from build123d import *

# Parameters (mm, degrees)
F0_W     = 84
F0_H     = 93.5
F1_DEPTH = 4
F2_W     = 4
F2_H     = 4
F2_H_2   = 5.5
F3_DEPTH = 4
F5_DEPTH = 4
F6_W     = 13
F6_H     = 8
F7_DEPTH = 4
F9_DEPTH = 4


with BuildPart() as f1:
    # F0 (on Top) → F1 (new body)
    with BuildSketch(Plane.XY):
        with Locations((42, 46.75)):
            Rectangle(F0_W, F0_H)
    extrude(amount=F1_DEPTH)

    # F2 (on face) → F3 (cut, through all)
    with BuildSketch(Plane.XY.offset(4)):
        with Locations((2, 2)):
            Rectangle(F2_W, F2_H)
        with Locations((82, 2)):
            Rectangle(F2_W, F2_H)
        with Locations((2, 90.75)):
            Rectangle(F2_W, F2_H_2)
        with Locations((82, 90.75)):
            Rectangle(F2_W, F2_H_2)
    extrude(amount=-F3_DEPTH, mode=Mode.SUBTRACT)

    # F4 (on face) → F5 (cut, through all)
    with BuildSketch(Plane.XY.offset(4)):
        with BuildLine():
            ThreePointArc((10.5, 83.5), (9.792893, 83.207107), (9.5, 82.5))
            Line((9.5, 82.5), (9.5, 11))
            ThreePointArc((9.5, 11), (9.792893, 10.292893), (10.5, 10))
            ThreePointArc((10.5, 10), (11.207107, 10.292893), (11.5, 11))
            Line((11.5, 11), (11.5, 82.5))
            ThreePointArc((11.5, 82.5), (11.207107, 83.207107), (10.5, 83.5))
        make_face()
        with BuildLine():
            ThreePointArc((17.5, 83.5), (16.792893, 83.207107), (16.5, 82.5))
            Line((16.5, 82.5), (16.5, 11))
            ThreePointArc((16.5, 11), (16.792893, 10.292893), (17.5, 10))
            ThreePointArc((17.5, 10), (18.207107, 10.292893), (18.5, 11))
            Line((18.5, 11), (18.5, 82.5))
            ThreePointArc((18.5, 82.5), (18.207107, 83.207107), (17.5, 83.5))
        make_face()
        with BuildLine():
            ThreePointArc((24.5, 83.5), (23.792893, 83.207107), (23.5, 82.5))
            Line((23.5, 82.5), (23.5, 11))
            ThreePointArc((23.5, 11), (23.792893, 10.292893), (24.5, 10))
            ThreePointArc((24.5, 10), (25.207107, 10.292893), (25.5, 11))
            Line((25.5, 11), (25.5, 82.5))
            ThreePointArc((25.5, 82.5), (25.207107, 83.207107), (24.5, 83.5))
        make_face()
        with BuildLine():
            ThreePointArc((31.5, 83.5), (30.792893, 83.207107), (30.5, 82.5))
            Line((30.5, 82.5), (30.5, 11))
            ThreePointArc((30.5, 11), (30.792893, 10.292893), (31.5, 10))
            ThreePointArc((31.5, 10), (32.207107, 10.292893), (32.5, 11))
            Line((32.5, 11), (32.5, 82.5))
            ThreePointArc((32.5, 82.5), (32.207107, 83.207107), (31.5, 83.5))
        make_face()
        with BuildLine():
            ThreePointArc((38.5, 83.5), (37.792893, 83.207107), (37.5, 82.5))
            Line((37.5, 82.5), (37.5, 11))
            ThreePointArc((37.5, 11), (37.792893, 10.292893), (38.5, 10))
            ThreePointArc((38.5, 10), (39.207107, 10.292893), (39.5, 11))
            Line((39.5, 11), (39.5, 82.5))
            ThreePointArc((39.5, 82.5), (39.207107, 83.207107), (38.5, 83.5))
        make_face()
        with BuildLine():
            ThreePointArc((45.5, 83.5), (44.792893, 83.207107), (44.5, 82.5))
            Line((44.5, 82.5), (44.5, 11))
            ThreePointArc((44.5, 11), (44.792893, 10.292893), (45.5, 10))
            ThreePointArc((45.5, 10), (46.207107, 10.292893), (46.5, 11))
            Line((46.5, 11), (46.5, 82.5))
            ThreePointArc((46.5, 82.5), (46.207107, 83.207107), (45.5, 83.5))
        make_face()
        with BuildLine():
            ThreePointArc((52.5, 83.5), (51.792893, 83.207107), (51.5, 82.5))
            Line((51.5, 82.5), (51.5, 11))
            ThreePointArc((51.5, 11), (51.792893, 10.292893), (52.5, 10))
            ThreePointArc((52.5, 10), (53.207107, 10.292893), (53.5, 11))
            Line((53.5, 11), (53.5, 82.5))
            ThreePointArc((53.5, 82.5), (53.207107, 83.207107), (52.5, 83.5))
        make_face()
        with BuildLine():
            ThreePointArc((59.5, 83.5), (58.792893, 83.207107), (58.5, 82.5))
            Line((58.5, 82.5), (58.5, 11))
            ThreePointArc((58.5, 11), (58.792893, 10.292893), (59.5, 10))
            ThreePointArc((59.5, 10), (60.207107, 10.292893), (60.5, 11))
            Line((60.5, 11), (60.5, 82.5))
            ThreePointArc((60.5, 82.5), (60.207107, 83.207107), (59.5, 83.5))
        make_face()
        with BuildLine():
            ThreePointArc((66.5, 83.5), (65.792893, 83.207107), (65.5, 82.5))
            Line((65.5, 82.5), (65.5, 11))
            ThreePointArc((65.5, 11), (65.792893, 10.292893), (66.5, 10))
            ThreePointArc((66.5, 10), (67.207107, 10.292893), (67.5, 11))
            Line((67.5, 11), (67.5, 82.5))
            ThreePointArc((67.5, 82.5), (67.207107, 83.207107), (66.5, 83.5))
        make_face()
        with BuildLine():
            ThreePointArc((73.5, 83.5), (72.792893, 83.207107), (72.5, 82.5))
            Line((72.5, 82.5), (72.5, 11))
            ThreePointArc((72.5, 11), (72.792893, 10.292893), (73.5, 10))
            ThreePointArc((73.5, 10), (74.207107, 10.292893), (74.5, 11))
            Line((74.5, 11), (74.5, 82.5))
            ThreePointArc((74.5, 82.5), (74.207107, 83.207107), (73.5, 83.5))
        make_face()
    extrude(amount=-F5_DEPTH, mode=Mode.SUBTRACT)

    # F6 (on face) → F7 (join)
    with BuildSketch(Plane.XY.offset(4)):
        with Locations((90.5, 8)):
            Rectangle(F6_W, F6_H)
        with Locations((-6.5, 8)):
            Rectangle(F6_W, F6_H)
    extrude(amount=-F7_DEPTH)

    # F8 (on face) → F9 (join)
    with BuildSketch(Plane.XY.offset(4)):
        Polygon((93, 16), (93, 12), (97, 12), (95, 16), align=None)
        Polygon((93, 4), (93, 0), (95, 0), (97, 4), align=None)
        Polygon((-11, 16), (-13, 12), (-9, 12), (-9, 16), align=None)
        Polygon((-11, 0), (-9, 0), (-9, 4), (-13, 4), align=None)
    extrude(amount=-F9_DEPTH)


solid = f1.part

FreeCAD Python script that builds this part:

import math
import FreeCAD as App
import Part
import Sketcher

doc = App.newDocument("Part")
body = doc.addObject("PartDesign::Body", "Body")

# Sketch on XY plane
sketch1 = body.newObject("Sketcher::SketchObject", "Sketch")
sketch1.AttachmentSupport = (doc.getObject("XY_Plane"), [""])
sketch1.MapMode = "FlatFace"
sketch1.addGeometry(Part.LineSegment(App.Vector(0, 94, 0), App.Vector(0, 0, 0)), False)
sketch1.addGeometry(Part.LineSegment(App.Vector(0, 0, 0), App.Vector(84, 0, 0)), False)
sketch1.addGeometry(Part.LineSegment(App.Vector(84, 0, 0), App.Vector(84, 94, 0)), False)
sketch1.addGeometry(Part.LineSegment(App.Vector(84, 94, 0), App.Vector(0, 94, 0)), False)
sketch1.addConstraint(Sketcher.Constraint("Coincident", 0, 2, 1, 1))
sketch1.addConstraint(Sketcher.Constraint("Coincident", 1, 2, 2, 1))
sketch1.addConstraint(Sketcher.Constraint("Coincident", 2, 2, 3, 1))
sketch1.addConstraint(Sketcher.Constraint("Coincident", 3, 2, 0, 1))
sketch1.addConstraint(Sketcher.Constraint("Vertical", 0))
sketch1.addConstraint(Sketcher.Constraint("Horizontal", 1))
sketch1.addConstraint(Sketcher.Constraint("Vertical", 2))
sketch1.addConstraint(Sketcher.Constraint("Horizontal", 3))
sketch1.addConstraint(Sketcher.Constraint("Coincident", 0, 2, -1, 1))
sketch1.addConstraint(Sketcher.Constraint("DistanceX", 1, 1, 1, 2, 84.0))
sketch1.addConstraint(Sketcher.Constraint("DistanceY", 0, 2, 0, 1, 93.5))
pad1 = body.newObject("PartDesign::Pad", "Pad")
pad1.Profile = sketch1
pad1.Length = 4

# Sketch on XY plane
sketch2 = body.newObject("Sketcher::SketchObject", "Sketch001")
sketch2.AttachmentSupport = (doc.getObject("XY_Plane"), [""])
sketch2.MapMode = "FlatFace"
sketch2.AttachmentOffset = App.Placement(App.Vector(0, 0, 4), App.Rotation())
sketch2.addGeometry(Part.LineSegment(App.Vector(0, 4, 0), App.Vector(0, 0, 0)), False)
sketch2.addGeometry(Part.LineSegment(App.Vector(0, 0, 0), App.Vector(4, 0, 0)), False)
sketch2.addGeometry(Part.LineSegment(App.Vector(4, 0, 0), App.Vector(4, 4, 0)), False)
sketch2.addGeometry(Part.LineSegment(App.Vector(4, 4, 0), App.Vector(0, 4, 0)), False)
sketch2.addGeometry(Part.LineSegment(App.Vector(80, 4, 0), App.Vector(80, 0, 0)), False)
sketch2.addGeometry(Part.LineSegment(App.Vector(80, 0, 0), App.Vector(84, 0, 0)), False)
sketch2.addGeometry(Part.LineSegment(App.Vector(84, 0, 0), App.Vector(84, 4, 0)), False)
sketch2.addGeometry(Part.LineSegment(App.Vector(84, 4, 0), App.Vector(80, 4, 0)), False)
sketch2.addGeometry(Part.LineSegment(App.Vector(0, 93.5, 0), App.Vector(0, 88, 0)), False)
sketch2.addGeometry(Part.LineSegment(App.Vector(0, 88, 0), App.Vector(4, 88, 0)), False)
sketch2.addGeometry(Part.LineSegment(App.Vector(4, 88, 0), App.Vector(4, 93.5, 0)), False)
sketch2.addGeometry(Part.LineSegment(App.Vector(4, 93.5, 0), App.Vector(0, 93.5, 0)), False)
sketch2.addGeometry(Part.LineSegment(App.Vector(80, 93.5, 0), App.Vector(80, 88, 0)), False)
sketch2.addGeometry(Part.LineSegment(App.Vector(80, 88, 0), App.Vector(84, 88, 0)), False)
sketch2.addGeometry(Part.LineSegment(App.Vector(84, 88, 0), App.Vector(84, 93.5, 0)), False)
sketch2.addGeometry(Part.LineSegment(App.Vector(84, 93.5, 0), App.Vector(80, 93.5, 0)), False)
sketch2.addConstraint(Sketcher.Constraint("Coincident", 0, 2, 1, 1))
sketch2.addConstraint(Sketcher.Constraint("Coincident", 1, 2, 2, 1))
sketch2.addConstraint(Sketcher.Constraint("Coincident", 2, 2, 3, 1))
sketch2.addConstraint(Sketcher.Constraint("Coincident", 3, 2, 0, 1))
sketch2.addConstraint(Sketcher.Constraint("Coincident", 4, 2, 5, 1))
sketch2.addConstraint(Sketcher.Constraint("Coincident", 5, 2, 6, 1))
sketch2.addConstraint(Sketcher.Constraint("Coincident", 6, 2, 7, 1))
sketch2.addConstraint(Sketcher.Constraint("Coincident", 7, 2, 4, 1))
sketch2.addConstraint(Sketcher.Constraint("Coincident", 8, 2, 9, 1))
sketch2.addConstraint(Sketcher.Constraint("Coincident", 9, 2, 10, 1))
sketch2.addConstraint(Sketcher.Constraint("Coincident", 10, 2, 11, 1))
sketch2.addConstraint(Sketcher.Constraint("Coincident", 11, 2, 8, 1))
sketch2.addConstraint(Sketcher.Constraint("Coincident", 12, 2, 13, 1))
sketch2.addConstraint(Sketcher.Constraint("Coincident", 13, 2, 14, 1))
sketch2.addConstraint(Sketcher.Constraint("Coincident", 14, 2, 15, 1))
sketch2.addConstraint(Sketcher.Constraint("Coincident", 15, 2, 12, 1))
sketch2.addConstraint(Sketcher.Constraint("Vertical", 0))
sketch2.addConstraint(Sketcher.Constraint("Horizontal", 1))
sketch2.addConstraint(Sketcher.Constraint("Vertical", 2))
sketch2.addConstraint(Sketcher.Constraint("Horizontal", 3))
sketch2.addConstraint(Sketcher.Constraint("Vertical", 4))
sketch2.addConstraint(Sketcher.Constraint("Horizontal", 5))
sketch2.addConstraint(Sketcher.Constraint("Vertical", 6))
sketch2.addConstraint(Sketcher.Constraint("Horizontal", 7))
sketch2.addConstraint(Sketcher.Constraint("Vertical", 8))
sketch2.addConstraint(Sketcher.Constraint("Horizontal", 9))
sketch2.addConstraint(Sketcher.Constraint("Vertical", 10))
sketch2.addConstraint(Sketcher.Constraint("Horizontal", 11))
sketch2.addConstraint(Sketcher.Constraint("Vertical", 12))
sketch2.addConstraint(Sketcher.Constraint("Horizontal", 13))
sketch2.addConstraint(Sketcher.Constraint("Vertical", 14))
sketch2.addConstraint(Sketcher.Constraint("Horizontal", 15))
sketch2.addConstraint(Sketcher.Constraint("Coincident", 0, 2, -1, 1))
sketch2.addConstraint(Sketcher.Constraint("PointOnObject", 4, 2, -1))
sketch2.addConstraint(Sketcher.Constraint("PointOnObject", 8, 2, -2))
sketch2.addConstraint(Sketcher.Constraint("Horizontal", 3, 2, 6, 2))
sketch2.addConstraint(Sketcher.Constraint("Horizontal", 9, 2, 12, 2))
sketch2.addConstraint(Sketcher.Constraint("Horizontal", 11, 2, 14, 2))
sketch2.addConstraint(Sketcher.Constraint("Vertical", 2, 2, 9, 2))
sketch2.addConstraint(Sketcher.Constraint("Vertical", 7, 2, 12, 2))
sketch2.addConstraint(Sketcher.Constraint("Vertical", 6, 2, 13, 2))
sketch2.addConstraint(Sketcher.Constraint("Equal", 3, 5))
sketch2.addConstraint(Sketcher.Constraint("Equal", 15, 0))
sketch2.addConstraint(Sketcher.Constraint("DistanceX", 1, 1, 1, 2, 4.0))
sketch2.addConstraint(Sketcher.Constraint("DistanceY", 8, 2, 8, 1, 5.5))
sketch2.addConstraint(Sketcher.Constraint("DistanceX", -1, 1, 4, 2, 80.0))
sketch2.addConstraint(Sketcher.Constraint("DistanceY", -1, 1, 8, 2, 88.0))
pocket1 = body.newObject("PartDesign::Pocket", "Pocket")
pocket1.Profile = sketch2
pocket1.Type = "ThroughAll"

# Sketch on XY plane
sketch3 = body.newObject("Sketcher::SketchObject", "Sketch002")
sketch3.AttachmentSupport = (doc.getObject("XY_Plane"), [""])
sketch3.MapMode = "FlatFace"
sketch3.AttachmentOffset = App.Placement(App.Vector(0, 0, 4), App.Rotation())
sketch3.addGeometry(Part.ArcOfCircle(Part.Circle(App.Vector(10.5, 82.5, 0), App.Vector(0, 0, 1), 1), math.radians(90), math.radians(180)), False)
sketch3.addGeometry(Part.LineSegment(App.Vector(9.5, 82.5, 0), App.Vector(9.5, 11, 0)), False)
sketch3.addGeometry(Part.ArcOfCircle(Part.Circle(App.Vector(10.5, 11, 0), App.Vector(0, 0, 1), 1), math.radians(180), math.radians(270)), False)
sketch3.addGeometry(Part.ArcOfCircle(Part.Circle(App.Vector(10.5, 11, 0), App.Vector(0, 0, 1), 1), math.radians(-90), math.radians(0)), False)
sketch3.addGeometry(Part.LineSegment(App.Vector(11.5, 11, 0), App.Vector(11.5, 82.5, 0)), False)
sketch3.addGeometry(Part.ArcOfCircle(Part.Circle(App.Vector(10.5, 82.5, 0), App.Vector(0, 0, 1), 1), math.radians(0), math.radians(90)), False)
sketch3.addGeometry(Part.ArcOfCircle(Part.Circle(App.Vector(17.5, 82.5, 0), App.Vector(0, 0, 1), 1), math.radians(90), math.radians(180)), False)
sketch3.addGeometry(Part.LineSegment(App.Vector(16.5, 82.5, 0), App.Vector(16.5, 11, 0)), False)
sketch3.addGeometry(Part.ArcOfCircle(Part.Circle(App.Vector(17.5, 11, 0), App.Vector(0, 0, 1), 1), math.radians(180), math.radians(270)), False)
sketch3.addGeometry(Part.ArcOfCircle(Part.Circle(App.Vector(17.5, 11, 0), App.Vector(0, 0, 1), 1), math.radians(-90), math.radians(0)), False)
sketch3.addGeometry(Part.LineSegment(App.Vector(18.5, 11, 0), App.Vector(18.5, 82.5, 0)), False)
sketch3.addGeometry(Part.ArcOfCircle(Part.Circle(App.Vector(17.5, 82.5, 0), App.Vector(0, 0, 1), 1), math.radians(0), math.radians(90)), False)
sketch3.addGeometry(Part.ArcOfCircle(Part.Circle(App.Vector(24.5, 82.5, 0), App.Vector(0, 0, 1), 1), math.radians(90), math.radians(180)), False)
sketch3.addGeometry(Part.LineSegment(App.Vector(23.5, 82.5, 0), App.Vector(23.5, 11, 0)), False)
sketch3.addGeometry(Part.ArcOfCircle(Part.Circle(App.Vector(24.5, 11, 0), App.Vector(0, 0, 1), 1), math.radians(180), math.radians(270)), False)
sketch3.addGeometry(Part.ArcOfCircle(Part.Circle(App.Vector(24.5, 11, 0), App.Vector(0, 0, 1), 1), math.radians(-90), math.radians(0)), False)
sketch3.addGeometry(Part.LineSegment(App.Vector(25.5, 11, 0), App.Vector(25.5, 82.5, 0)), False)
sketch3.addGeometry(Part.ArcOfCircle(Part.Circle(App.Vector(24.5, 82.5, 0), App.Vector(0, 0, 1), 1), math.radians(0), math.radians(90)), False)
sketch3.addGeometry(Part.ArcOfCircle(Part.Circle(App.Vector(31.5, 82.5, 0), App.Vector(0, 0, 1), 1), math.radians(90), math.radians(180)), False)
sketch3.addGeometry(Part.LineSegment(App.Vector(30.5, 82.5, 0), App.Vector(30.5, 11, 0)), False)
sketch3.addGeometry(Part.ArcOfCircle(Part.Circle(App.Vector(31.5, 11, 0), App.Vector(0, 0, 1), 1), math.radians(180), math.radians(270)), False)
sketch3.addGeometry(Part.ArcOfCircle(Part.Circle(App.Vector(31.5, 11, 0), App.Vector(0, 0, 1), 1), math.radians(-90), math.radians(0)), False)
sketch3.addGeometry(Part.LineSegment(App.Vector(32.5, 11, 0), App.Vector(32.5, 82.5, 0)), False)
sketch3.addGeometry(Part.ArcOfCircle(Part.Circle(App.Vector(31.5, 82.5, 0), App.Vector(0, 0, 1), 1), math.radians(0), math.radians(90)), False)
sketch3.addGeometry(Part.ArcOfCircle(Part.Circle(App.Vector(38.5, 82.5, 0), App.Vector(0, 0, 1), 1), math.radians(90), math.radians(180)), False)
sketch3.addGeometry(Part.LineSegment(App.Vector(37.5, 82.5, 0), App.Vector(37.5, 11, 0)), False)
sketch3.addGeometry(Part.ArcOfCircle(Part.Circle(App.Vector(38.5, 11, 0), App.Vector(0, 0, 1), 1), math.radians(180), math.radians(270)), False)
sketch3.addGeometry(Part.ArcOfCircle(Part.Circle(App.Vector(38.5, 11, 0), App.Vector(0, 0, 1), 1), math.radians(-90), math.radians(0)), False)
sketch3.addGeometry(Part.LineSegment(App.Vector(39.5, 11, 0), App.Vector(39.5, 82.5, 0)), False)
sketch3.addGeometry(Part.ArcOfCircle(Part.Circle(App.Vector(38.5, 82.5, 0), App.Vector(0, 0, 1), 1), math.radians(0), math.radians(90)), False)
sketch3.addGeometry(Part.ArcOfCircle(Part.Circle(App.Vector(45.5, 82.5, 0), App.Vector(0, 0, 1), 1), math.radians(90), math.radians(180)), False)
sketch3.addGeometry(Part.LineSegment(App.Vector(44.5, 82.5, 0), App.Vector(44.5, 11, 0)), False)
sketch3.addGeometry(Part.ArcOfCircle(Part.Circle(App.Vector(45.5, 11, 0), App.Vector(0, 0, 1), 1), math.radians(180), math.radians(270)), False)
sketch3.addGeometry(Part.ArcOfCircle(Part.Circle(App.Vector(45.5, 11, 0), App.Vector(0, 0, 1), 1), math.radians(-90), math.radians(0)), False)
sketch3.addGeometry(Part.LineSegment(App.Vector(46.5, 11, 0), App.Vector(46.5, 82.5, 0)), False)
sketch3.addGeometry(Part.ArcOfCircle(Part.Circle(App.Vector(45.5, 82.5, 0), App.Vector(0, 0, 1), 1), math.radians(0), math.radians(90)), False)
sketch3.addGeometry(Part.ArcOfCircle(Part.Circle(App.Vector(52.5, 82.5, 0), App.Vector(0, 0, 1), 1), math.radians(90), math.radians(180)), False)
sketch3.addGeometry(Part.LineSegment(App.Vector(51.5, 82.5, 0), App.Vector(51.5, 11, 0)), False)
sketch3.addGeometry(Part.ArcOfCircle(Part.Circle(App.Vector(52.5, 11, 0), App.Vector(0, 0, 1), 1), math.radians(180), math.radians(270)), False)
sketch3.addGeometry(Part.ArcOfCircle(Part.Circle(App.Vector(52.5, 11, 0), App.Vector(0, 0, 1), 1), math.radians(-90), math.radians(0)), False)
sketch3.addGeometry(Part.LineSegment(App.Vector(53.5, 11, 0), App.Vector(53.5, 82.5, 0)), False)
sketch3.addGeometry(Part.ArcOfCircle(Part.Circle(App.Vector(52.5, 82.5, 0), App.Vector(0, 0, 1), 1), math.radians(0), math.radians(90)), False)
sketch3.addGeometry(Part.ArcOfCircle(Part.Circle(App.Vector(59.5, 82.5, 0), App.Vector(0, 0, 1), 1), math.radians(90), math.radians(180)), False)
sketch3.addGeometry(Part.LineSegment(App.Vector(58.5, 82.5, 0), App.Vector(58.5, 11, 0)), False)
sketch3.addGeometry(Part.ArcOfCircle(Part.Circle(App.Vector(59.5, 11, 0), App.Vector(0, 0, 1), 1), math.radians(180), math.radians(270)), False)
sketch3.addGeometry(Part.ArcOfCircle(Part.Circle(App.Vector(59.5, 11, 0), App.Vector(0, 0, 1), 1), math.radians(-90), math.radians(0)), False)
sketch3.addGeometry(Part.LineSegment(App.Vector(60.5, 11, 0), App.Vector(60.5, 82.5, 0)), False)
sketch3.addGeometry(Part.ArcOfCircle(Part.Circle(App.Vector(59.5, 82.5, 0), App.Vector(0, 0, 1), 1), math.radians(0), math.radians(90)), False)
sketch3.addGeometry(Part.ArcOfCircle(Part.Circle(App.Vector(66.5, 82.5, 0), App.Vector(0, 0, 1), 1), math.radians(90), math.radians(180)), False)
sketch3.addGeometry(Part.LineSegment(App.Vector(65.5, 82.5, 0), App.Vector(65.5, 11, 0)), False)
sketch3.addGeometry(Part.ArcOfCircle(Part.Circle(App.Vector(66.5, 11, 0), App.Vector(0, 0, 1), 1), math.radians(180), math.radians(270)), False)
sketch3.addGeometry(Part.ArcOfCircle(Part.Circle(App.Vector(66.5, 11, 0), App.Vector(0, 0, 1), 1), math.radians(-90), math.radians(0)), False)
sketch3.addGeometry(Part.LineSegment(App.Vector(67.5, 11, 0), App.Vector(67.5, 82.5, 0)), False)
sketch3.addGeometry(Part.ArcOfCircle(Part.Circle(App.Vector(66.5, 82.5, 0), App.Vector(0, 0, 1), 1), math.radians(0), math.radians(90)), False)
sketch3.addGeometry(Part.ArcOfCircle(Part.Circle(App.Vector(73.5, 82.5, 0), App.Vector(0, 0, 1), 1), math.radians(90), math.radians(180)), False)
sketch3.addGeometry(Part.LineSegment(App.Vector(72.5, 82.5, 0), App.Vector(72.5, 11, 0)), False)
sketch3.addGeometry(Part.ArcOfCircle(Part.Circle(App.Vector(73.5, 11, 0), App.Vector(0, 0, 1), 1), math.radians(180), math.radians(270)), False)
sketch3.addGeometry(Part.ArcOfCircle(Part.Circle(App.Vector(73.5, 11, 0), App.Vector(0, 0, 1), 1), math.radians(-90), math.radians(0)), False)
sketch3.addGeometry(Part.LineSegment(App.Vector(74.5, 11, 0), App.Vector(74.5, 82.5, 0)), False)
sketch3.addGeometry(Part.ArcOfCircle(Part.Circle(App.Vector(73.5, 82.5, 0), App.Vector(0, 0, 1), 1), math.radians(0), math.radians(90)), False)
sketch3.addConstraint(Sketcher.Constraint("Tangent", 0, 2, 1, 1))
sketch3.addConstraint(Sketcher.Constraint("Tangent", 1, 2, 2, 1))
sketch3.addConstraint(Sketcher.Constraint("Tangent", 2, 2, 3, 1))
sketch3.addConstraint(Sketcher.Constraint("Tangent", 3, 2, 4, 1))
sketch3.addConstraint(Sketcher.Constraint("Tangent", 4, 2, 5, 1))
sketch3.addConstraint(Sketcher.Constraint("Tangent", 5, 2, 0, 1))
sketch3.addConstraint(Sketcher.Constraint("Tangent", 6, 2, 7, 1))
sketch3.addConstraint(Sketcher.Constraint("Tangent", 7, 2, 8, 1))
sketch3.addConstraint(Sketcher.Constraint("Tangent", 8, 2, 9, 1))
sketch3.addConstraint(Sketcher.Constraint("Tangent", 9, 2, 10, 1))
sketch3.addConstraint(Sketcher.Constraint("Tangent", 10, 2, 11, 1))
sketch3.addConstraint(Sketcher.Constraint("Tangent", 11, 2, 6, 1))
sketch3.addConstraint(Sketcher.Constraint("Tangent", 12, 2, 13, 1))
sketch3.addConstraint(Sketcher.Constraint("Tangent", 13, 2, 14, 1))
sketch3.addConstraint(Sketcher.Constraint("Tangent", 14, 2, 15, 1))
sketch3.addConstraint(Sketcher.Constraint("Tangent", 15, 2, 16, 1))
sketch3.addConstraint(Sketcher.Constraint("Tangent", 16, 2, 17, 1))
sketch3.addConstraint(Sketcher.Constraint("Tangent", 17, 2, 12, 1))
sketch3.addConstraint(Sketcher.Constraint("Tangent", 18, 2, 19, 1))
sketch3.addConstraint(Sketcher.Constraint("Tangent", 19, 2, 20, 1))
sketch3.addConstraint(Sketcher.Constraint("Tangent", 20, 2, 21, 1))
sketch3.addConstraint(Sketcher.Constraint("Tangent", 21, 2, 22, 1))
sketch3.addConstraint(Sketcher.Constraint("Tangent", 22, 2, 23, 1))
sketch3.addConstraint(Sketcher.Constraint("Tangent", 23, 2, 18, 1))
sketch3.addConstraint(Sketcher.Constraint("Tangent", 24, 2, 25, 1))
sketch3.addConstraint(Sketcher.Constraint("Tangent", 25, 2, 26, 1))
sketch3.addConstraint(Sketcher.Constraint("Tangent", 26, 2, 27, 1))
sketch3.addConstraint(Sketcher.Constraint("Tangent", 27, 2, 28, 1))
sketch3.addConstraint(Sketcher.Constraint("Tangent", 28, 2, 29, 1))
sketch3.addConstraint(Sketcher.Constraint("Tangent", 29, 2, 24, 1))
sketch3.addConstraint(Sketcher.Constraint("Tangent", 30, 2, 31, 1))
sketch3.addConstraint(Sketcher.Constraint("Tangent", 31, 2, 32, 1))
sketch3.addConstraint(Sketcher.Constraint("Tangent", 32, 2, 33, 1))
sketch3.addConstraint(Sketcher.Constraint("Tangent", 33, 2, 34, 1))
sketch3.addConstraint(Sketcher.Constraint("Tangent", 34, 2, 35, 1))
sketch3.addConstraint(Sketcher.Constraint("Tangent", 35, 2, 30, 1))
sketch3.addConstraint(Sketcher.Constraint("Tangent", 36, 2, 37, 1))
sketch3.addConstraint(Sketcher.Constraint("Tangent", 37, 2, 38, 1))
sketch3.addConstraint(Sketcher.Constraint("Tangent", 38, 2, 39, 1))
sketch3.addConstraint(Sketcher.Constraint("Tangent", 39, 2, 40, 1))
sketch3.addConstraint(Sketcher.Constraint("Tangent", 40, 2, 41, 1))
sketch3.addConstraint(Sketcher.Constraint("Tangent", 41, 2, 36, 1))
sketch3.addConstraint(Sketcher.Constraint("Tangent", 42, 2, 43, 1))
sketch3.addConstraint(Sketcher.Constraint("Tangent", 43, 2, 44, 1))
sketch3.addConstraint(Sketcher.Constraint("Tangent", 44, 2, 45, 1))
sketch3.addConstraint(Sketcher.Constraint("Tangent", 45, 2, 46, 1))
sketch3.addConstraint(Sketcher.Constraint("Tangent", 46, 2, 47, 1))
sketch3.addConstraint(Sketcher.Constraint("Tangent", 47, 2, 42, 1))
sketch3.addConstraint(Sketcher.Constraint("Tangent", 48, 2, 49, 1))
sketch3.addConstraint(Sketcher.Constraint("Tangent", 49, 2, 50, 1))
sketch3.addConstraint(Sketcher.Constraint("Tangent", 50, 2, 51, 1))
sketch3.addConstraint(Sketcher.Constraint("Tangent", 51, 2, 52, 1))
sketch3.addConstraint(Sketcher.Constraint("Tangent", 52, 2, 53, 1))
sketch3.addConstraint(Sketcher.Constraint("Tangent", 53, 2, 48, 1))
sketch3.addConstraint(Sketcher.Constraint("Tangent", 54, 2, 55, 1))
sketch3.addConstraint(Sketcher.Constraint("Tangent", 55, 2, 56, 1))
sketch3.addConstraint(Sketcher.Constraint("Tangent", 56, 2, 57, 1))
sketch3.addConstraint(Sketcher.Constraint("Tangent", 57, 2, 58, 1))
sketch3.addConstraint(Sketcher.Constraint("Tangent", 58, 2, 59, 1))
sketch3.addConstraint(Sketcher.Constraint("Tangent", 59, 2, 54, 1))
sketch3.addConstraint(Sketcher.Constraint("Vertical", 1))
sketch3.addConstraint(Sketcher.Constraint("Vertical", 4))
sketch3.addConstraint(Sketcher.Constraint("Vertical", 7))
sketch3.addConstraint(Sketcher.Constraint("Vertical", 10))
sketch3.addConstraint(Sketcher.Constraint("Vertical", 13))
sketch3.addConstraint(Sketcher.Constraint("Vertical", 16))
sketch3.addConstraint(Sketcher.Constraint("Vertical", 19))
sketch3.addConstraint(Sketcher.Constraint("Vertical", 22))
sketch3.addConstraint(Sketcher.Constraint("Vertical", 25))
sketch3.addConstraint(Sketcher.Constraint("Vertical", 28))
sketch3.addConstraint(Sketcher.Constraint("Vertical", 31))
sketch3.addConstraint(Sketcher.Constraint("Vertical", 34))
sketch3.addConstraint(Sketcher.Constraint("Vertical", 37))
sketch3.addConstraint(Sketcher.Constraint("Vertical", 40))
sketch3.addConstraint(Sketcher.Constraint("Vertical", 43))
sketch3.addConstraint(Sketcher.Constraint("Vertical", 46))
sketch3.addConstraint(Sketcher.Constraint("Vertical", 49))
sketch3.addConstraint(Sketcher.Constraint("Vertical", 52))
sketch3.addConstraint(Sketcher.Constraint("Vertical", 55))
sketch3.addConstraint(Sketcher.Constraint("Vertical", 58))
sketch3.addConstraint(Sketcher.Constraint("Equal", 0, 2))
sketch3.addConstraint(Sketcher.Constraint("Equal", 2, 3))
sketch3.addConstraint(Sketcher.Constraint("Equal", 5, 6))
sketch3.addConstraint(Sketcher.Constraint("Equal", 6, 8))
sketch3.addConstraint(Sketcher.Constraint("Equal", 8, 9))
sketch3.addConstraint(Sketcher.Constraint("Equal", 11, 12))
sketch3.addConstraint(Sketcher.Constraint("Equal", 12, 14))
sketch3.addConstraint(Sketcher.Constraint("Equal", 14, 15))
sketch3.addConstraint(Sketcher.Constraint("Equal", 17, 18))
sketch3.addConstraint(Sketcher.Constraint("Equal", 18, 20))
sketch3.addConstraint(Sketcher.Constraint("Equal", 20, 21))
sketch3.addConstraint(Sketcher.Constraint("Equal", 23, 24))
sketch3.addConstraint(Sketcher.Constraint("Equal", 24, 26))
sketch3.addConstraint(Sketcher.Constraint("Equal", 26, 27))
sketch3.addConstraint(Sketcher.Constraint("Equal", 29, 30))
sketch3.addConstraint(Sketcher.Constraint("Equal", 30, 32))
sketch3.addConstraint(Sketcher.Constraint("Equal", 32, 33))
sketch3.addConstraint(Sketcher.Constraint("Equal", 35, 36))
sketch3.addConstraint(Sketcher.Constraint("Equal", 36, 38))
sketch3.addConstraint(Sketcher.Constraint("Equal", 38, 39))
sketch3.addConstraint(Sketcher.Constraint("Equal", 41, 42))
sketch3.addConstraint(Sketcher.Constraint("Equal", 42, 44))
sketch3.addConstraint(Sketcher.Constraint("Equal", 44, 45))
sketch3.addConstraint(Sketcher.Constraint("Equal", 47, 48))
sketch3.addConstraint(Sketcher.Constraint("Equal", 48, 50))
sketch3.addConstraint(Sketcher.Constraint("Equal", 50, 51))
sketch3.addConstraint(Sketcher.Constraint("Equal", 53, 54))
sketch3.addConstraint(Sketcher.Constraint("Equal", 54, 56))
sketch3.addConstraint(Sketcher.Constraint("Equal", 56, 57))
sketch3.addConstraint(Sketcher.Constraint("Horizontal", 5, 3, 6, 3))
sketch3.addConstraint(Sketcher.Constraint("Horizontal", 3, 3, 8, 3))
sketch3.addConstraint(Sketcher.Constraint("Horizontal", 11, 3, 12, 3))
sketch3.addConstraint(Sketcher.Constraint("Horizontal", 9, 3, 14, 3))
sketch3.addConstraint(Sketcher.Constraint("Horizontal", 17, 3, 18, 3))
sketch3.addConstraint(Sketcher.Constraint("Horizontal", 15, 3, 20, 3))
sketch3.addConstraint(Sketcher.Constraint("Horizontal", 23, 3, 24, 3))
sketch3.addConstraint(Sketcher.Constraint("Horizontal", 21, 3, 26, 3))
sketch3.addConstraint(Sketcher.Constraint("Horizontal", 29, 3, 30, 3))
sketch3.addConstraint(Sketcher.Constraint("Horizontal", 27, 3, 32, 3))
sketch3.addConstraint(Sketcher.Constraint("Horizontal", 35, 3, 36, 3))
sketch3.addConstraint(Sketcher.Constraint("Horizontal", 33, 3, 38, 3))
sketch3.addConstraint(Sketcher.Constraint("Horizontal", 41, 3, 42, 3))
sketch3.addConstraint(Sketcher.Constraint("Horizontal", 39, 3, 44, 3))
sketch3.addConstraint(Sketcher.Constraint("Horizontal", 47, 3, 48, 3))
sketch3.addConstraint(Sketcher.Constraint("Horizontal", 45, 3, 50, 3))
sketch3.addConstraint(Sketcher.Constraint("Horizontal", 53, 3, 54, 3))
sketch3.addConstraint(Sketcher.Constraint("Horizontal", 51, 3, 56, 3))
sketch3.addConstraint(Sketcher.Constraint("Vertical", 5, 3, 2, 2))
sketch3.addConstraint(Sketcher.Constraint("Vertical", 2, 2, 5, 2))
sketch3.addConstraint(Sketcher.Constraint("Vertical", 11, 3, 8, 2))
sketch3.addConstraint(Sketcher.Constraint("Vertical", 8, 2, 11, 2))
sketch3.addConstraint(Sketcher.Constraint("Vertical", 17, 3, 14, 2))
sketch3.addConstraint(Sketcher.Constraint("Vertical", 14, 2, 17, 2))
sketch3.addConstraint(Sketcher.Constraint("Vertical", 23, 3, 20, 2))
sketch3.addConstraint(Sketcher.Constraint("Vertical", 20, 2, 23, 2))
sketch3.addConstraint(Sketcher.Constraint("Vertical", 29, 3, 26, 2))
sketch3.addConstraint(Sketcher.Constraint("Vertical", 26, 2, 29, 2))
sketch3.addConstraint(Sketcher.Constraint("Vertical", 35, 3, 32, 2))
sketch3.addConstraint(Sketcher.Constraint("Vertical", 32, 2, 35, 2))
sketch3.addConstraint(Sketcher.Constraint("Vertical", 41, 3, 38, 2))
sketch3.addConstraint(Sketcher.Constraint("Vertical", 38, 2, 41, 2))
sketch3.addConstraint(Sketcher.Constraint("Vertical", 47, 3, 44, 2))
sketch3.addConstraint(Sketcher.Constraint("Vertical", 44, 2, 47, 2))
sketch3.addConstraint(Sketcher.Constraint("Vertical", 53, 3, 50, 2))
sketch3.addConstraint(Sketcher.Constraint("Vertical", 50, 2, 53, 2))
sketch3.addConstraint(Sketcher.Constraint("Vertical", 59, 3, 56, 2))
sketch3.addConstraint(Sketcher.Constraint("Vertical", 56, 2, 59, 2))
sketch3.addConstraint(Sketcher.Constraint("Radius", 0, 0.999999))
sketch3.addConstraint(Sketcher.Constraint("DistanceY", 1, 2, 1, 1, 71.5))
sketch3.addConstraint(Sketcher.Constraint("DistanceY", -1, 1, 2, 3, 10.999999))
sketch3.addConstraint(Sketcher.Constraint("DistanceX", -1, 1, 0, 3, 10.499999))
sketch3.addConstraint(Sketcher.Constraint("DistanceX", -1, 1, 6, 3, 17.499999))
sketch3.addConstraint(Sketcher.Constraint("DistanceX", -1, 1, 12, 3, 24.499999))
sketch3.addConstraint(Sketcher.Constraint("DistanceX", -1, 1, 18, 3, 31.499999))
sketch3.addConstraint(Sketcher.Constraint("DistanceX", -1, 1, 24, 3, 38.499999))
sketch3.addConstraint(Sketcher.Constraint("DistanceX", -1, 1, 30, 3, 45.499999))
sketch3.addConstraint(Sketcher.Constraint("DistanceX", -1, 1, 36, 3, 52.499999))
sketch3.addConstraint(Sketcher.Constraint("DistanceX", -1, 1, 42, 3, 59.499999))
sketch3.addConstraint(Sketcher.Constraint("DistanceX", -1, 1, 48, 3, 66.499999))
sketch3.addConstraint(Sketcher.Constraint("DistanceX", -1, 1, 54, 3, 73.499999))
pocket2 = body.newObject("PartDesign::Pocket", "Pocket001")
pocket2.Profile = sketch3
pocket2.Type = "ThroughAll"

# Sketch on XY plane
sketch4 = body.newObject("Sketcher::SketchObject", "Sketch003")
sketch4.AttachmentSupport = (doc.getObject("XY_Plane"), [""])
sketch4.MapMode = "FlatFace"
sketch4.AttachmentOffset = App.Placement(App.Vector(0, 0, 4), App.Rotation())
sketch4.addGeometry(Part.LineSegment(App.Vector(84, 12, 0), App.Vector(84, 4, 0)), False)
sketch4.addGeometry(Part.LineSegment(App.Vector(84, 4, 0), App.Vector(97, 4, 0)), False)
sketch4.addGeometry(Part.LineSegment(App.Vector(97, 4, 0), App.Vector(97, 12, 0)), False)
sketch4.addGeometry(Part.LineSegment(App.Vector(97, 12, 0), App.Vector(84, 12, 0)), False)
sketch4.addGeometry(Part.LineSegment(App.Vector(-13, 12, 0), App.Vector(-13, 4, 0)), False)
sketch4.addGeometry(Part.LineSegment(App.Vector(-13, 4, 0), App.Vector(0, 4, 0)), False)
sketch4.addGeometry(Part.LineSegment(App.Vector(0, 4, 0), App.Vector(0, 12, 0)), False)
sketch4.addGeometry(Part.LineSegment(App.Vector(0, 12, 0), App.Vector(-13, 12, 0)), False)
sketch4.addConstraint(Sketcher.Constraint("Coincident", 0, 2, 1, 1))
sketch4.addConstraint(Sketcher.Constraint("Coincident", 1, 2, 2, 1))
sketch4.addConstraint(Sketcher.Constraint("Coincident", 2, 2, 3, 1))
sketch4.addConstraint(Sketcher.Constraint("Coincident", 3, 2, 0, 1))
sketch4.addConstraint(Sketcher.Constraint("Coincident", 4, 2, 5, 1))
sketch4.addConstraint(Sketcher.Constraint("Coincident", 5, 2, 6, 1))
sketch4.addConstraint(Sketcher.Constraint("Coincident", 6, 2, 7, 1))
sketch4.addConstraint(Sketcher.Constraint("Coincident", 7, 2, 4, 1))
sketch4.addConstraint(Sketcher.Constraint("Vertical", 0))
sketch4.addConstraint(Sketcher.Constraint("Horizontal", 1))
sketch4.addConstraint(Sketcher.Constraint("Vertical", 2))
sketch4.addConstraint(Sketcher.Constraint("Horizontal", 3))
sketch4.addConstraint(Sketcher.Constraint("Vertical", 4))
sketch4.addConstraint(Sketcher.Constraint("Horizontal", 5))
sketch4.addConstraint(Sketcher.Constraint("Vertical", 6))
sketch4.addConstraint(Sketcher.Constraint("Horizontal", 7))
sketch4.addConstraint(Sketcher.Constraint("PointOnObject", 5, 2, -2))
sketch4.addConstraint(Sketcher.Constraint("Horizontal", 1, 2, 4, 2))
sketch4.addConstraint(Sketcher.Constraint("Horizontal", 3, 2, 6, 2))
sketch4.addConstraint(Sketcher.Constraint("Equal", 3, 5))
sketch4.addConstraint(Sketcher.Constraint("DistanceX", 1, 1, 1, 2, 13.0))
sketch4.addConstraint(Sketcher.Constraint("DistanceY", 0, 2, 0, 1, 8.0))
sketch4.addConstraint(Sketcher.Constraint("DistanceX", -1, 1, 0, 2, 84.0))
sketch4.addConstraint(Sketcher.Constraint("DistanceY", -1, 1, 0, 2, 4.0))
pad2 = body.newObject("PartDesign::Pad", "Pad001")
pad2.Profile = sketch4
pad2.Length = 4
pad2.Reversed = True

# Sketch on XY plane
sketch5 = body.newObject("Sketcher::SketchObject", "Sketch004")
sketch5.AttachmentSupport = (doc.getObject("XY_Plane"), [""])
sketch5.MapMode = "FlatFace"
sketch5.AttachmentOffset = App.Placement(App.Vector(0, 0, 4), App.Rotation())
sketch5.addGeometry(Part.LineSegment(App.Vector(93, 16, 0), App.Vector(93, 12, 0)), False)
sketch5.addGeometry(Part.LineSegment(App.Vector(93, 12, 0), App.Vector(97, 12, 0)), False)
sketch5.addGeometry(Part.LineSegment(App.Vector(97, 12, 0), App.Vector(95, 16, 0)), False)
sketch5.addGeometry(Part.LineSegment(App.Vector(95, 16, 0), App.Vector(93, 16, 0)), False)
sketch5.addGeometry(Part.LineSegment(App.Vector(93, 4, 0), App.Vector(93, 0, 0)), False)
sketch5.addGeometry(Part.LineSegment(App.Vector(93, 0, 0), App.Vector(95, 0, 0)), False)
sketch5.addGeometry(Part.LineSegment(App.Vector(95, 0, 0), App.Vector(97, 4, 0)), False)
sketch5.addGeometry(Part.LineSegment(App.Vector(97, 4, 0), App.Vector(93, 4, 0)), False)
sketch5.addGeometry(Part.LineSegment(App.Vector(-11, 16, 0), App.Vector(-13, 12, 0)), False)
sketch5.addGeometry(Part.LineSegment(App.Vector(-13, 12, 0), App.Vector(-9, 12, 0)), False)
sketch5.addGeometry(Part.LineSegment(App.Vector(-9, 12, 0), App.Vector(-9, 16, 0)), False)
sketch5.addGeometry(Part.LineSegment(App.Vector(-9, 16, 0), App.Vector(-11, 16, 0)), False)
sketch5.addGeometry(Part.LineSegment(App.Vector(-11, 0, 0), App.Vector(-9, 0, 0)), False)
sketch5.addGeometry(Part.LineSegment(App.Vector(-9, 0, 0), App.Vector(-9, 4, 0)), False)
sketch5.addGeometry(Part.LineSegment(App.Vector(-9, 4, 0), App.Vector(-13, 4, 0)), False)
sketch5.addGeometry(Part.LineSegment(App.Vector(-13, 4, 0), App.Vector(-11, 0, 0)), False)
sketch5.addConstraint(Sketcher.Constraint("Coincident", 0, 2, 1, 1))
sketch5.addConstraint(Sketcher.Constraint("Coincident", 1, 2, 2, 1))
sketch5.addConstraint(Sketcher.Constraint("Coincident", 2, 2, 3, 1))
sketch5.addConstraint(Sketcher.Constraint("Coincident", 3, 2, 0, 1))
sketch5.addConstraint(Sketcher.Constraint("Coincident", 4, 2, 5, 1))
sketch5.addConstraint(Sketcher.Constraint("Coincident", 5, 2, 6, 1))
sketch5.addConstraint(Sketcher.Constraint("Coincident", 6, 2, 7, 1))
sketch5.addConstraint(Sketcher.Constraint("Coincident", 7, 2, 4, 1))
sketch5.addConstraint(Sketcher.Constraint("Coincident", 8, 2, 9, 1))
sketch5.addConstraint(Sketcher.Constraint("Coincident", 9, 2, 10, 1))
sketch5.addConstraint(Sketcher.Constraint("Coincident", 10, 2, 11, 1))
sketch5.addConstraint(Sketcher.Constraint("Coincident", 11, 2, 8, 1))
sketch5.addConstraint(Sketcher.Constraint("Coincident", 12, 2, 13, 1))
sketch5.addConstraint(Sketcher.Constraint("Coincident", 13, 2, 14, 1))
sketch5.addConstraint(Sketcher.Constraint("Coincident", 14, 2, 15, 1))
sketch5.addConstraint(Sketcher.Constraint("Coincident", 15, 2, 12, 1))
sketch5.addConstraint(Sketcher.Constraint("Vertical", 0))
sketch5.addConstraint(Sketcher.Constraint("Horizontal", 1))
sketch5.addConstraint(Sketcher.Constraint("Horizontal", 3))
sketch5.addConstraint(Sketcher.Constraint("Vertical", 4))
sketch5.addConstraint(Sketcher.Constraint("Horizontal", 5))
sketch5.addConstraint(Sketcher.Constraint("Horizontal", 7))
sketch5.addConstraint(Sketcher.Constraint("Horizontal", 9))
sketch5.addConstraint(Sketcher.Constraint("Vertical", 10))
sketch5.addConstraint(Sketcher.Constraint("Horizontal", 11))
sketch5.addConstraint(Sketcher.Constraint("Horizontal", 12))
sketch5.addConstraint(Sketcher.Constraint("Vertical", 13))
sketch5.addConstraint(Sketcher.Constraint("Horizontal", 14))
sketch5.addConstraint(Sketcher.Constraint("PointOnObject", 4, 2, -1))
sketch5.addConstraint(Sketcher.Constraint("PointOnObject", 12, 2, -1))
sketch5.addConstraint(Sketcher.Constraint("Parallel", 6, 8))
sketch5.addConstraint(Sketcher.Constraint("Parallel", 2, 15))
sketch5.addConstraint(Sketcher.Constraint("Horizontal", 1, 2, 8, 2))
sketch5.addConstraint(Sketcher.Constraint("Horizontal", 3, 2, 10, 2))
sketch5.addConstraint(Sketcher.Constraint("Horizontal", 7, 2, 13, 2))
sketch5.addConstraint(Sketcher.Constraint("Vertical", 3, 2, 4, 2))
sketch5.addConstraint(Sketcher.Constraint("Vertical", 2, 2, 5, 2))
sketch5.addConstraint(Sketcher.Constraint("Vertical", 1, 2, 6, 2))
sketch5.addConstraint(Sketcher.Constraint("Vertical", 10, 2, 12, 2))
sketch5.addConstraint(Sketcher.Constraint("Vertical", 8, 2, 14, 2))
sketch5.addConstraint(Sketcher.Constraint("Vertical", 11, 2, 15, 2))
sketch5.addConstraint(Sketcher.Constraint("Equal", 7, 9))
sketch5.addConstraint(Sketcher.Constraint("Equal", 14, 0))
sketch5.addConstraint(Sketcher.Constraint("DistanceX", 1, 1, 1, 2, 4.0))
sketch5.addConstraint(Sketcher.Constraint("DistanceX", 3, 2, 3, 1, 2.0))
sketch5.addConstraint(Sketcher.Constraint("DistanceX", -1, 1, 0, 2, 93.0))
sketch5.addConstraint(Sketcher.Constraint("DistanceY", -1, 1, 0, 2, 12.0))
sketch5.addConstraint(Sketcher.Constraint("DistanceX", 8, 2, -1, 1, 13.0))
pad3 = body.newObject("PartDesign::Pad", "Pad002")
pad3.Profile = sketch5
pad3.Length = 4
pad3.Reversed = True

doc.recompute()
